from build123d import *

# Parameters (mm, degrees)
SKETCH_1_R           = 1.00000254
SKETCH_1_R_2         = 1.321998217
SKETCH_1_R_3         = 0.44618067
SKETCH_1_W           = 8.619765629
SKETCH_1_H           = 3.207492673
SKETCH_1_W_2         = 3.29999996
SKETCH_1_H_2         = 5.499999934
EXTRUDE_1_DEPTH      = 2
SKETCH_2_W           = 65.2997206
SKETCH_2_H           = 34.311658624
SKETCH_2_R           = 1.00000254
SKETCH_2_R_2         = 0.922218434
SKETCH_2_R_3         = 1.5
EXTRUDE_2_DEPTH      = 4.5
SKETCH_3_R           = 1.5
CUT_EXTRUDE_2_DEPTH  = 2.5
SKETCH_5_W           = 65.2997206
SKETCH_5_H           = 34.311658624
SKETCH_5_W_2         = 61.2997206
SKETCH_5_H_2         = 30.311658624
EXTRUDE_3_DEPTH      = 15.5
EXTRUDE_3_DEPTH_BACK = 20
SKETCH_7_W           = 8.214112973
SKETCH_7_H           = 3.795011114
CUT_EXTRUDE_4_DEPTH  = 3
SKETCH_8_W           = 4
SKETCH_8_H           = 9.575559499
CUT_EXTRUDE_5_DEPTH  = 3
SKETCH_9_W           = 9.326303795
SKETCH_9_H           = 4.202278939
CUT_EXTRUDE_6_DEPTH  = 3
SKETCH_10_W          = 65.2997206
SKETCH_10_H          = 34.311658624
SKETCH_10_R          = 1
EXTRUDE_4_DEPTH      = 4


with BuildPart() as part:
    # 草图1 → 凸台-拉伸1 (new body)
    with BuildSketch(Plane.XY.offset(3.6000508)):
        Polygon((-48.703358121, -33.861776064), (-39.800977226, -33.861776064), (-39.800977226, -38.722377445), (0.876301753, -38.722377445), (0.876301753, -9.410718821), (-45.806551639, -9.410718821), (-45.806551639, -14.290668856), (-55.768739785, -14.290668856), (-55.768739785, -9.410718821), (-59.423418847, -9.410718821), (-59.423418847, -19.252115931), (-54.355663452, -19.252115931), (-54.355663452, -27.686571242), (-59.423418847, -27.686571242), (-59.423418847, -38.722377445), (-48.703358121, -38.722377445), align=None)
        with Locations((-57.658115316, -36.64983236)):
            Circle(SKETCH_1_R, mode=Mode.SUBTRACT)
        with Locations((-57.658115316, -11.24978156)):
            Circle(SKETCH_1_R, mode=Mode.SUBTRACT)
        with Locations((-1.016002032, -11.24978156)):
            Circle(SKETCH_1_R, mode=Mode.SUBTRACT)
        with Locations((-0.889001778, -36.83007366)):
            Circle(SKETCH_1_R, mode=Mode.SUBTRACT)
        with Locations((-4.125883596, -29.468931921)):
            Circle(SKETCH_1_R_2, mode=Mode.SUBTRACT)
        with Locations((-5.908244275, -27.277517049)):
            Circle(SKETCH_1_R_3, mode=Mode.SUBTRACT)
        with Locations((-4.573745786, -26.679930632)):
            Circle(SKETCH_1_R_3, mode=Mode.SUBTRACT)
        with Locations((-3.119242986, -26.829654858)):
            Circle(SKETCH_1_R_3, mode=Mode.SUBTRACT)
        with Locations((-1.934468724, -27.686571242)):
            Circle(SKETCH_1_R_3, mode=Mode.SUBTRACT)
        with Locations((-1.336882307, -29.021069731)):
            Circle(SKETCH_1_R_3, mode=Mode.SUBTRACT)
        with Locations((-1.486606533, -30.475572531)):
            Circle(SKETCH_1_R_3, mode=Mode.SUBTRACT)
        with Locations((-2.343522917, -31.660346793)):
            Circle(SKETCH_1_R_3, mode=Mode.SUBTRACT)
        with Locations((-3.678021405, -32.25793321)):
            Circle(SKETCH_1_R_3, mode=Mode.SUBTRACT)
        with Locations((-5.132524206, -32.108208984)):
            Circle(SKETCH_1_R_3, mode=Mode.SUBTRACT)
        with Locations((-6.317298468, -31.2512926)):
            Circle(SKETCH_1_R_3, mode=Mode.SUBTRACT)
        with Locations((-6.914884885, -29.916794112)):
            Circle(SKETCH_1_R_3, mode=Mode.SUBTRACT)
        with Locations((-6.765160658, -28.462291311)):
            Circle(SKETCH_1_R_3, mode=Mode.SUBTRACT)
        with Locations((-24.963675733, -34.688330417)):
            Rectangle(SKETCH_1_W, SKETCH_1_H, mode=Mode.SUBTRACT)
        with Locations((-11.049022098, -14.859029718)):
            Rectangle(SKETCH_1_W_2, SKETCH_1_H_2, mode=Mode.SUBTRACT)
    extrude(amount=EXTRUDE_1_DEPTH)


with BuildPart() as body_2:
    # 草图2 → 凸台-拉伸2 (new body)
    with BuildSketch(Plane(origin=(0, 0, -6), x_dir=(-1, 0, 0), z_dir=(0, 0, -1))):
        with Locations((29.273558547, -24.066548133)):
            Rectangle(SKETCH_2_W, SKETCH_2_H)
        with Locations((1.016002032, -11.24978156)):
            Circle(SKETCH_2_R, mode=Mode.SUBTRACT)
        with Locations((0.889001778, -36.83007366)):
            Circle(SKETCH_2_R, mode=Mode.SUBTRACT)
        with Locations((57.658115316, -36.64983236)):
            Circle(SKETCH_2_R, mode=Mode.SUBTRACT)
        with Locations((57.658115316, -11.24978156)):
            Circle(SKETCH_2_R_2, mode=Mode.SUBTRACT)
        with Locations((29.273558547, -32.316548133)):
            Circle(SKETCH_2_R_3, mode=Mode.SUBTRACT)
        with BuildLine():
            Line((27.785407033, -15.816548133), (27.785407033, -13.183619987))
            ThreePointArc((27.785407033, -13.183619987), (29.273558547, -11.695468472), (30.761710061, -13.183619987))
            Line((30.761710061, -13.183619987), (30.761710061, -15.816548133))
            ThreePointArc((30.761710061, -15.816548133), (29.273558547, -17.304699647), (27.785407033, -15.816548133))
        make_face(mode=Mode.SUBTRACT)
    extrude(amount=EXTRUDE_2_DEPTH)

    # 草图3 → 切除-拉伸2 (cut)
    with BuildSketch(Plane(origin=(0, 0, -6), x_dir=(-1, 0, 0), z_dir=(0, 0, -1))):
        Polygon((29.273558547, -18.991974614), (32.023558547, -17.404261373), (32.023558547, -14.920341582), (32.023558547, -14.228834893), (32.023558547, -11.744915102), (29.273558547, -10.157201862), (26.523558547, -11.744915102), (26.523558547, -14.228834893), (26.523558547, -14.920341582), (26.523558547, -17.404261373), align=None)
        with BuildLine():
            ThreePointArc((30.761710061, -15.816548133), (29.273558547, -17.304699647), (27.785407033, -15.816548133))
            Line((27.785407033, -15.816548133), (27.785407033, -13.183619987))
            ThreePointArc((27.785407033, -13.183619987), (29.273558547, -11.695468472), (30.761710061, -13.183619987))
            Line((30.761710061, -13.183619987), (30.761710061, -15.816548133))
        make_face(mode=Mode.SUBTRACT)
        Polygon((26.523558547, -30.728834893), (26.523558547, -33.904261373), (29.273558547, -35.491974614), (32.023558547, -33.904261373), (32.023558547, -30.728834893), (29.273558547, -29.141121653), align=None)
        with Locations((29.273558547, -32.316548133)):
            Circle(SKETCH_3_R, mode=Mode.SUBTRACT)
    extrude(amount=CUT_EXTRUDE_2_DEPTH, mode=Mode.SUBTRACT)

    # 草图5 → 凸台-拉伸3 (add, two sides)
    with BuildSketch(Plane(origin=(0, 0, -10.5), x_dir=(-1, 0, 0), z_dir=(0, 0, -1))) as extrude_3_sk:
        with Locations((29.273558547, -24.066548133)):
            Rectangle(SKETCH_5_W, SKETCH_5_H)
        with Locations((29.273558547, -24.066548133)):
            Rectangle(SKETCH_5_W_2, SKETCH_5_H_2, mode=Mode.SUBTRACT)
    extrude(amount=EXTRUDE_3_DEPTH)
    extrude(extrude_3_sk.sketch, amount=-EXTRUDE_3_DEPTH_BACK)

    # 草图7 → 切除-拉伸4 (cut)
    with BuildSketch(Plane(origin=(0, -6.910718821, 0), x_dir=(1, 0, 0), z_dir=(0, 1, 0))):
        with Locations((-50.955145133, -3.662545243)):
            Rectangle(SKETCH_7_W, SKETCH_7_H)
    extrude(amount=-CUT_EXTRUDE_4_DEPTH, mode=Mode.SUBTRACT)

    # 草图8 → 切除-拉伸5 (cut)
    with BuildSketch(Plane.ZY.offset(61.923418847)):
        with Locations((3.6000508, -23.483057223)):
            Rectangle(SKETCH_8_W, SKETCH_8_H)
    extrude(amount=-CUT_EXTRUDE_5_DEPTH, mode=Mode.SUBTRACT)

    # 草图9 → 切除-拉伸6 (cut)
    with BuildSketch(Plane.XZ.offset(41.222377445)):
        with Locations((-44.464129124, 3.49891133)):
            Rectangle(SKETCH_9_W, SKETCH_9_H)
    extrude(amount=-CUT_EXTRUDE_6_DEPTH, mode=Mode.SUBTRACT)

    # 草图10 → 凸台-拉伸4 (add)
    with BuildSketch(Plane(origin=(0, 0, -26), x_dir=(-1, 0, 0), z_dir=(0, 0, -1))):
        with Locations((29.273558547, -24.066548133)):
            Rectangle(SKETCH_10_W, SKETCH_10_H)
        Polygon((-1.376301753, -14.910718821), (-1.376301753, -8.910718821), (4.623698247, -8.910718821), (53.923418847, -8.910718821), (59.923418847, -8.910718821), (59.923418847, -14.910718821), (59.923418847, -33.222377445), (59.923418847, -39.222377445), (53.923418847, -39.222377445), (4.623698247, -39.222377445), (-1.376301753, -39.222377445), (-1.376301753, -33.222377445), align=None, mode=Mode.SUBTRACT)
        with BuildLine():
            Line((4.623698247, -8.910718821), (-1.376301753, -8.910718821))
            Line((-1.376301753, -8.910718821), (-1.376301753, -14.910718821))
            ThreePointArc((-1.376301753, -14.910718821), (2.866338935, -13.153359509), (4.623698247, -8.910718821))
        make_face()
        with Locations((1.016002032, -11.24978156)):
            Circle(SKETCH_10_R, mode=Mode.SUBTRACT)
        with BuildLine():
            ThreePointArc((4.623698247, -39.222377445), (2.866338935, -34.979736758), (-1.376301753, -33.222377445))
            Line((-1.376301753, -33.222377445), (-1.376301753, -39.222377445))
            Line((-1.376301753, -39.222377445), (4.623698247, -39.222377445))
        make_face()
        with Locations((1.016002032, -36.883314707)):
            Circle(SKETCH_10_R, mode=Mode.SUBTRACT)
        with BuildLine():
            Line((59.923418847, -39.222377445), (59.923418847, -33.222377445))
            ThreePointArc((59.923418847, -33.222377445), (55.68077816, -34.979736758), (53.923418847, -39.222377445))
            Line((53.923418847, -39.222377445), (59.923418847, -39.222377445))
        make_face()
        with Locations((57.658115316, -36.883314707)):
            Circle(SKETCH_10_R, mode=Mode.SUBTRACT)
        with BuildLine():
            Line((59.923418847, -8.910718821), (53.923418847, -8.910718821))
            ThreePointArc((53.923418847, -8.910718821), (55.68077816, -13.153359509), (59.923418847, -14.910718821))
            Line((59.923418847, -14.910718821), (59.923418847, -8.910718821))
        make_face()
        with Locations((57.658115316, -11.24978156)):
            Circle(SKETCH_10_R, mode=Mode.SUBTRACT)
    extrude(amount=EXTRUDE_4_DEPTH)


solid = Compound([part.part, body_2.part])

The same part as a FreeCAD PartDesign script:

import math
import FreeCAD as App
import Part
import Sketcher
from FreeCAD import Vector
Q = App.Units.Quantity


def add_polygon(sketch, points):
    """Adds a closed chain of lines whose ends are joined by coincident constraints."""
    first, n = sketch.GeometryCount, len(points)
    for a, b in zip(points, points[1:] + points[:1]):
        sketch.addGeometry(Part.LineSegment(App.Vector(*a, 0), App.Vector(*b, 0)), False)
    for i in range(n):
        sketch.addConstraint(Sketcher.Constraint("Coincident", first + i, 2, first + (i + 1) % n, 1))

doc = App.newDocument("Part")
body = doc.addObject("PartDesign::Body", "Body")

# Sketch on XY plane
sketch1 = body.newObject("Sketcher::SketchObject", "Sketch")
sketch1.AttachmentSupport = (doc.getObject("XY_Plane"), [""])
sketch1.MapMode = "FlatFace"
sketch1.AttachmentOffset = App.Placement(Vector(0, 0, 3.600051), App.Rotation())
add_polygon(sketch1, [(-48.7, -33.86), (-39.8, -33.86), (-39.8, -38.72), (0.88, -38.72), (0.88, -9.41), (-45.81, -9.41), (-45.81, -14.29), (-55.77, -14.29), (-55.77, -9.41), (-59.42, -9.41), (-59.42, -19.25), (-54.36, -19.25), (-54.36, -27.69), (-59.42, -27.69), (-59.42, -38.72), (-48.7, -38.72)])  # lines 0-15
sketch1.addGeometry(Part.Circle(Vector(-57.66, -36.65, 0), Vector(0, 0, 1), 1), False)  # 16
add_polygon(sketch1, [(-20.65, -36.29), (-29.27, -36.29), (-29.27, -33.08), (-20.65, -33.08)])  # lines 17-20
sketch1.addGeometry(Part.Circle(Vector(-0.89, -36.83, 0), Vector(0, 0, 1), 1), False)  # 21
sketch1.addGeometry(Part.Circle(Vector(-3.68, -32.26, 0), Vector(0, 0, 1), 0.45), False)  # 22
sketch1.addGeometry(Part.Circle(Vector(-5.13, -32.11, 0), Vector(0, 0, 1), 0.45), False)  # 23
sketch1.addGeometry(Part.Circle(Vector(-6.32, -31.25, 0), Vector(0, 0, 1), 0.45), False)  # 24
sketch1.addGeometry(Part.Circle(Vector(-2.34, -31.66, 0), Vector(0, 0, 1), 0.45), False)  # 25
sketch1.addGeometry(Part.Circle(Vector(-6.91, -29.92, 0), Vector(0, 0, 1), 0.45), False)  # 26
sketch1.addGeometry(Part.Circle(Vector(-4.13, -29.47, 0), Vector(0, 0, 1), 1.32), False)  # 27
sketch1.addGeometry(Part.Circle(Vector(-1.49, -30.48, 0), Vector(0, 0, 1), 0.45), False)  # 28
sketch1.addGeometry(Part.Circle(Vector(-6.77, -28.46, 0), Vector(0, 0, 1), 0.45), False)  # 29
sketch1.addGeometry(Part.Circle(Vector(-1.34, -29.02, 0), Vector(0, 0, 1), 0.45), False)  # 30
sketch1.addGeometry(Part.Circle(Vector(-1.93, -27.69, 0), Vector(0, 0, 1), 0.45), False)  # 31
sketch1.addGeometry(Part.Circle(Vector(-5.91, -27.28, 0), Vector(0, 0, 1), 0.45), False)  # 32
sketch1.addGeometry(Part.Circle(Vector(-4.57, -26.68, 0), Vector(0, 0, 1), 0.45), False)  # 33
sketch1.addGeometry(Part.Circle(Vector(-3.12, -26.83, 0), Vector(0, 0, 1), 0.45), False)  # 34
sketch1.addGeometry(Part.Circle(Vector(-57.66, -11.25, 0), Vector(0, 0, 1), 1), False)  # 35
add_polygon(sketch1, [(-9.4, -17.61), (-12.7, -17.61), (-12.7, -12.11), (-9.4, -12.11)])  # lines 36-39
sketch1.addGeometry(Part.Circle(Vector(-1.02, -11.25, 0), Vector(0, 0, 1), 1), False)  # 40
sketch1.addConstraint([
    Sketcher.Constraint("Horizontal", 0),
    Sketcher.Constraint("Vertical", 1),
    Sketcher.Constraint("Horizontal", 2),
    Sketcher.Constraint("Vertical", 3),
    Sketcher.Constraint("Horizontal", 4),
    Sketcher.Constraint("Vertical", 5),
    Sketcher.Constraint("Horizontal", 6),
    Sketcher.Constraint("Vertical", 7),
    Sketcher.Constraint("Horizontal", 8),
    Sketcher.Constraint("Vertical", 9),
    Sketcher.Constraint("Horizontal", 10),
    Sketcher.Constraint("Vertical", 11),
    Sketcher.Constraint("Horizontal", 12),
    Sketcher.Constraint("Vertical", 13),
    Sketcher.Constraint("Horizontal", 14),
    Sketcher.Constraint("Vertical", 15),
    Sketcher.Constraint("Horizontal", 17),
    Sketcher.Constraint("Vertical", 18),
    Sketcher.Constraint("Horizontal", 19),
    Sketcher.Constraint("Vertical", 20),
    Sketcher.Constraint("Horizontal", 36),
    Sketcher.Constraint("Vertical", 37),
    Sketcher.Constraint("Horizontal", 38),
    Sketcher.Constraint("Vertical", 39),
    Sketcher.Constraint("Equal", 16, 21),
    Sketcher.Constraint("Equal", 22, 23),
    Sketcher.Constraint("Equal", 23, 24),
    Sketcher.Constraint("Equal", 24, 25),
    Sketcher.Constraint("Equal", 25, 26),
    Sketcher.Constraint("Equal", 26, 28),
    Sketcher.Constraint("Equal", 28, 29),
    Sketcher.Constraint("Equal", 29, 30),
    Sketcher.Constraint("Equal", 30, 31),
    Sketcher.Constraint("Equal", 31, 32),
    Sketcher.Constraint("Equal", 32, 33),
    Sketcher.Constraint("Equal", 33, 34),
    Sketcher.Constraint("Equal", 21, 35),
    Sketcher.Constraint("Equal", 35, 40),
    Sketcher.Constraint("Horizontal", 35, 3, 40, 3),
    Sketcher.Constraint("Horizontal", 4, 2, 7, 2),
    Sketcher.Constraint("Horizontal", 31, 3, 11, 2),
    Sketcher.Constraint("Horizontal", 2, 2, 13, 2),
    Sketcher.Constraint("Vertical", 16, 3, 35, 3),
    Sketcher.Constraint("Vertical", 9, 2, 12, 2),
    Sketcher.Constraint("DistanceX", 36, 2, 36, 1, Q("3.3 mm")),
    Sketcher.Constraint("DistanceY", 37, 1, 37, 2, Q("5.5 mm")),
    Sketcher.Constraint("Diameter", 22, Q("0.892361 mm")),
    Sketcher.Constraint("Diameter", 16, Q("2.000005 mm")),
    Sketcher.Constraint("Diameter", 27, Q("2.643996 mm")),
    Sketcher.Constraint("DistanceY", 1, 2, 1, 1, Q("4.860601 mm")),
    Sketcher.Constraint("DistanceX", 21, 3, -1, 1, Q("0.889002 mm")),
    Sketcher.Constraint("DistanceX", 23, 3, 25, 3, Q("2.789001 mm")),
    Sketcher.Constraint("DistanceY", 22, 3, 27, 3, Q("2.789001 mm")),
    Sketcher.Constraint("DistanceX", 26, 3, 27, 3, Q("2.789001 mm")),
    Sketcher.Constraint("DistanceY", 24, 3, 29, 3, Q("2.789001 mm")),
    Sketcher.Constraint("DistanceX", 27, 3, 30, 3, Q("2.789001 mm")),
    Sketcher.Constraint("DistanceY", 28, 3, 31, 3, Q("2.789001 mm")),
    Sketcher.Constraint("DistanceY", 27, 3, 33, 3, Q("2.789001 mm")),
    Sketcher.Constraint("DistanceX", 32, 3, 34, 3, Q("2.789001 mm")),
    Sketcher.Constraint("DistanceX", 0, 1, 0, 2, Q("8.902381 mm")),
    Sketcher.Constraint("DistanceX", 2, 1, 2, 2, Q("40.677279 mm")),
    Sketcher.Constraint("DistanceX", 6, 2, 6, 1, Q("9.962188 mm")),
    Sketcher.Constraint("DistanceX", 8, 2, 8, 1, Q("3.654679 mm")),
    Sketcher.Constraint("DistanceX", 14, 1, 14, 2, Q("10.720061 mm")),
    Sketcher.Constraint("DistanceY", 3, 1, 3, 2, Q("29.311659 mm")),
    Sketcher.Constraint("DistanceY", 5, 2, 5, 1, Q("4.87995 mm")),
    Sketcher.Constraint("DistanceX", 24, 3, -1, 1, Q("6.317298 mm")),
    Sketcher.Constraint("DistanceX", -1, 1, 2, 2, Q("0.876302 mm")),
    Sketcher.Constraint("DistanceY", 16, 3, 22, 3, Q("4.391899 mm")),
    Sketcher.Constraint("DistanceX", 22, 3, 25, 3, Q("1.334498 mm")),
    Sketcher.Constraint("DistanceY", 24, 3, 26, 3, Q("1.334498 mm")),
    Sketcher.Constraint("DistanceY", 30, 3, 31, 3, Q("1.334498 mm")),
    Sketcher.Constraint("DistanceX", 32, 3, 33, 3, Q("1.334498 mm")),
    Sketcher.Constraint("DistanceY", 32, 3, 3, 2, Q("17.866798 mm")),
    Sketcher.Constraint("DistanceY", 17, 2, 0, 2, Q("2.430301 mm")),
    Sketcher.Constraint("DistanceX", 15, 2, 17, 2, Q("19.4298 mm")),
    Sketcher.Constraint("DistanceY", 33, 3, 36, 2, Q("9.070901 mm")),
    Sketcher.Constraint("DistanceX", 10, 1, 10, 2, Q("5.067755 mm")),
    Sketcher.Constraint("DistanceX", 17, 2, 17, 1, Q("8.619766 mm")),
    Sketcher.Constraint("DistanceY", 9, 2, 9, 1, Q("9.841397 mm")),
    Sketcher.Constraint("DistanceY", 11, 2, 11, 1, Q("8.434455 mm")),
    Sketcher.Constraint("DistanceY", 18, 1, 18, 2, Q("3.207493 mm")),
    Sketcher.Constraint("DistanceX", 22, 3, -1, 1, Q("3.678021 mm")),
    Sketcher.Constraint("DistanceY", 23, 3, -1, 1, Q("32.108209 mm")),
    Sketcher.Constraint("DistanceY", 27, 3, -1, 1, Q("29.468932 mm")),
    Sketcher.Constraint("DistanceX", 29, 3, -1, 1, Q("6.765161 mm")),
    Sketcher.Constraint("DistanceY", 29, 3, -1, 1, Q("28.462291 mm")),
    Sketcher.Constraint("DistanceY", 30, 3, -1, 1, Q("29.02107 mm")),
    Sketcher.Constraint("DistanceX", 31, 3, -1, 1, Q("1.934469 mm")),
    Sketcher.Constraint("DistanceY", 35, 3, -1, 1, Q("11.249782 mm")),
    Sketcher.Constraint("DistanceY", 21, 3, 16, 3, Q("0.180241 mm")),
    Sketcher.Constraint("DistanceX", 16, 3, 23, 3, Q("52.525591 mm")),
    Sketcher.Constraint("DistanceX", 26, 3, 23, 3, Q("1.782361 mm")),
    Sketcher.Constraint("DistanceX", 24, 3, 28, 3, Q("4.830692 mm")),
    Sketcher.Constraint("DistanceX", 32, 3, 27, 3, Q("1.782361 mm")),
    Sketcher.Constraint("DistanceX", 34, 3, 40, 3, Q("2.103241 mm")),
    Sketcher.Constraint("DistanceY", 2, 2, 25, 3, Q("7.062031 mm")),
    Sketcher.Constraint("DistanceX", 36, 2, 29, 3, Q("5.933861 mm")),
    Sketcher.Constraint("DistanceY", 34, 3, -1, 1, Q("26.829655 mm")),
])
pad1 = body.newObject("PartDesign::Pad", "Pad")
pad1.Profile = sketch1
pad1.Length = 2
body2 = doc.addObject("PartDesign::Body", "Body001")

# Sketch on XY plane
sketch2 = body2.newObject("Sketcher::SketchObject", "Sketch001")
sketch2.AttachmentSupport = (doc.getObject("XY_Plane001"), [""])
sketch2.MapMode = "FlatFace"
sketch2.AttachmentOffset = App.Placement(Vector(0, 0, -6), App.Rotation())
add_polygon(sketch2, [(3.4, -6.9), (3.4, -41.2), (-61.9, -41.2), (-61.9, -6.9)])  # lines 0-3
sketch2.addGeometry(Part.Circle(Vector(-0.9, -36.8, 0), Vector(0, 0, 1), 1), False)  # 4
sketch2.addGeometry(Part.Circle(Vector(-29.3, -32.3, 0), Vector(0, 0, 1), 1.5), False)  # 5
sketch2.addGeometry(Part.Circle(Vector(-57.7, -36.6, 0), Vector(0, 0, 1), 1), False)  # 6
sketch2.addGeometry(Part.Circle(Vector(-1, -11.2, 0), Vector(0, 0, 1), 1), False)  # 7
sketch2.addGeometry(Part.ArcOfCircle(Part.Circle(Vector(-29.3, -15.8, 0), Vector(0, 0, 1), 1.5), math.radians(180), math.radians(360)), False)  # 8
sketch2.addGeometry(Part.LineSegment(Vector(-27.8, -15.8, 0), Vector(-27.8, -13.2, 0)), False)  # 9
sketch2.addGeometry(Part.ArcOfCircle(Part.Circle(Vector(-29.3, -13.2, 0), Vector(0, 0, 1), 1.5), math.radians(0), math.radians(180)), False)  # 10
sketch2.addGeometry(Part.LineSegment(Vector(-30.8, -13.2, 0), Vector(-30.8, -15.8, 0)), False)  # 11
sketch2.addGeometry(Part.Circle(Vector(-57.7, -11.2, 0), Vector(0, 0, 1), 0.9), False)  # 12
sketch2.addConstraint([
    Sketcher.Constraint("Tangent", 8, 2, 9, 1),
    Sketcher.Constraint("Tangent", 9, 2, 10, 1),
    Sketcher.Constraint("Tangent", 10, 2, 11, 1),
    Sketcher.Constraint("Tangent", 11, 2, 8, 1),
    Sketcher.Constraint("Vertical", 0),
    Sketcher.Constraint("Horizontal", 1),
    Sketcher.Constraint("Vertical", 2),
    Sketcher.Constraint("Horizontal", 3),
    Sketcher.Constraint("Vertical", 9),
    Sketcher.Constraint("Vertical", 11),
    Sketcher.Constraint("Equal", 4, 6),
    Sketcher.Constraint("Equal", 6, 7),
    Sketcher.Constraint("Horizontal", 7, 3, 12, 3),
    Sketcher.Constraint("Vertical", 5, 3, 8, 3),
    Sketcher.Constraint("Vertical", 6, 3, 12, 3),
    Sketcher.Constraint("Diameter", 5, Q("3 mm")),
    Sketcher.Constraint("DistanceY", 5, 3, 8, 3, Q("16.5 mm")),
    Sketcher.Constraint("Radius", 8, Q("1.488152 mm")),
    Sketcher.Constraint("Diameter", 4, Q("2.000005 mm")),
    Sketcher.Constraint("Diameter", 12, Q("1.844437 mm")),
    Sketcher.Constraint("DistanceX", 4, 3, -1, 1, Q("0.889002 mm")),
    Sketcher.Constraint("DistanceX", 7, 3, 4, 3, Q("0.127 mm")),
    Sketcher.Constraint("DistanceX", 1, 2, 1, 1, Q("65.299721 mm")),
    Sketcher.Constraint("DistanceY", 0, 2, 0, 1, Q("34.311659 mm")),
    Sketcher.Constraint("DistanceY", 9, 1, 9, 2, Q("2.632928 mm")),
    Sketcher.Constraint("DistanceX", -1, 1, 0, 2, Q("3.376302 mm")),
    Sketcher.Constraint("DistanceY", 10, 3, 2, 2, Q("6.272901 mm")),
    Sketcher.Constraint("DistanceX", 5, 3, -1, 1, Q("29.273559 mm")),
    Sketcher.Constraint("DistanceY", 5, 3, -1, 1, Q("32.316548 mm")),
    Sketcher.Constraint("DistanceY", 7, 3, -1, 1, Q("11.249782 mm")),
    Sketcher.Constraint("DistanceY", 4, 3, 6, 3, Q("0.180241 mm")),
    Sketcher.Constraint("DistanceY", 6, 3, 7, 3, Q("25.400051 mm")),
    Sketcher.Constraint("DistanceX", 12, 3, 8, 2, Q("29.872708 mm")),
])
pad2 = body2.newObject("PartDesign::Pad", "Pad001")
pad2.Profile = sketch2
pad2.Length = 4.5
pad2.Reversed = True

# Sketch on XY plane
sketch3 = body2.newObject("Sketcher::SketchObject", "Sketch002")
sketch3.AttachmentSupport = (doc.getObject("XY_Plane001"), [""])
sketch3.MapMode = "FlatFace"
sketch3.AttachmentOffset = App.Placement(Vector(0, 0, -6), App.Rotation())
add_polygon(sketch3, [(-29.3, -19), (-32, -17.4), (-32, -11.7), (-29.3, -10.2), (-26.5, -11.7), (-26.5, -17.4)])  # lines 0-5
sketch3.addGeometry(Part.LineSegment(Vector(-30.8, -13.2, 0), Vector(-30.8, -15.8, 0)), False)  # 6
sketch3.addGeometry(Part.ArcOfCircle(Part.Circle(Vector(-29.3, -15.8, 0), Vector(0, 0, 1), 1.5), math.radians(180), math.radians(360)), False)  # 7
sketch3.addGeometry(Part.LineSegment(Vector(-27.8, -15.8, 0), Vector(-27.8, -13.2, 0)), False)  # 8
sketch3.addGeometry(Part.ArcOfCircle(Part.Circle(Vector(-29.3, -13.2, 0), Vector(0, 0, 1), 1.5), math.radians(0), math.radians(180)), False)  # 9
add_polygon(sketch3, [(-26.5, -30.7), (-26.5, -33.9), (-29.3, -35.5), (-32, -33.9), (-32, -30.7), (-29.3, -29.1)])  # lines 10-15
sketch3.addGeometry(Part.Circle(Vector(-29.3, -32.3, 0), Vector(0, 0, 1), 1.5), False)  # 16
sketch3.addConstraint([
    Sketcher.Constraint("Tangent", 6, 2, 7, 1),
    Sketcher.Constraint("Tangent", 7, 2, 8, 1),
    Sketcher.Constraint("Tangent", 8, 2, 9, 1),
    Sketcher.Constraint("Tangent", 9, 2, 6, 1),
    Sketcher.Constraint("Vertical", 1),
    Sketcher.Constraint("Vertical", 4),
    Sketcher.Constraint("Vertical", 6),
    Sketcher.Constraint("Vertical", 8),
    Sketcher.Constraint("Vertical", 10),
    Sketcher.Constraint("Vertical", 13),
    Sketcher.Constraint("Parallel", 0, 3),
    Sketcher.Constraint("Parallel", 2, 5),
    Sketcher.Constraint("Parallel", 5, 11),
    Sketcher.Constraint("Parallel", 3, 12),
    Sketcher.Constraint("Parallel", 11, 14),
    Sketcher.Constraint("Parallel", 12, 15),
    Sketcher.Constraint("Horizontal", 1, 2, 3, 2),
    Sketcher.Constraint("Horizontal", 0, 2, 4, 2),
    Sketcher.Constraint("Horizontal", 10, 2, 12, 2),
    Sketcher.Constraint("Horizontal", 13, 2, 15, 2),
    Sketcher.Constraint("Vertical", 9, 3, 16, 3),
    Sketcher.Constraint("Vertical", 16, 3, 2, 2),
    Sketcher.Constraint("Vertical", 2, 2, 5, 2),
    Sketcher.Constraint("Vertical", 4, 2, 10, 2),
    Sketcher.Constraint("Vertical", 5, 2, 11, 2),
    Sketcher.Constraint("Diameter", 16, Q("3 mm")),
    Sketcher.Constraint("Angle", 0, Q("150 deg")),
    Sketcher.Constraint("DistanceY", 16, 3, 7, 3, Q("16.5 mm")),
    Sketcher.Constraint("DistanceX", 1, 2, 3, 2, Q("5.5 mm")),
    Sketcher.Constraint("DistanceY", 10, 2, 4, 2, Q("16.5 mm")),
    Sketcher.Constraint("Radius", 7, Q("1.488152 mm")),
    Sketcher.Constraint("DistanceY", 6, 2, 6, 1, Q("2.632928 mm")),
    Sketcher.Constraint("DistanceY", 2, 2, -1, 1, Q("10.157202 mm")),
    Sketcher.Constraint("DistanceY", 1, 1, 1, 2, Q("5.659346 mm")),
    Sketcher.Constraint("DistanceY", 10, 2, 10, 1, Q("3.175426 mm")),
    Sketcher.Constraint("DistanceX", 7, 3, -1, 1, Q("29.273559 mm")),
    Sketcher.Constraint("DistanceY", 7, 3, -1, 1, Q("15.816548 mm")),
])
pocket1 = body2.newObject("PartDesign::Pocket", "Pocket")
pocket1.Profile = sketch3
pocket1.Length = 2.5

# Sketch on XY plane
sketch4 = body2.newObject("Sketcher::SketchObject", "Sketch003")
sketch4.AttachmentSupport = (doc.getObject("XY_Plane001"), [""])
sketch4.MapMode = "FlatFace"
sketch4.AttachmentOffset = App.Placement(Vector(0, 0, -10.5), App.Rotation())
add_polygon(sketch4, [(3, -7), (3, -41), (-62, -41), (-62, -7)])  # lines 0-3
add_polygon(sketch4, [(-60, -39), (1, -39), (1, -9), (-60, -9)])  # lines 4-7
sketch4.addConstraint([
    Sketcher.Constraint("Vertical", 0),
    Sketcher.Constraint("Horizontal", 1),
    Sketcher.Constraint("Vertical", 2),
    Sketcher.Constraint("Horizontal", 3),
    Sketcher.Constraint("Horizontal", 4),
    Sketcher.Constraint("Vertical", 5),
    Sketcher.Constraint("Horizontal", 6),
    Sketcher.Constraint("Vertical", 7),
    Sketcher.Constraint("DistanceX", 4, 2, 0, 2, Q("2 mm")),
    Sketcher.Constraint("DistanceY", 0, 2, 4, 2, Q("2 mm")),
    Sketcher.Constraint("DistanceY", 5, 2, 3, 2, Q("2 mm")),
    Sketcher.Constraint("DistanceX", 2, 2, 6, 2, Q("2 mm")),
    Sketcher.Constraint("DistanceX", 1, 2, 1, 1, Q("65.299721 mm")),
    Sketcher.Constraint("DistanceY", 0, 2, 0, 1, Q("34.311659 mm")),
    Sketcher.Constraint("DistanceX", -1, 1, 0, 2, Q("3.376302 mm")),
    Sketcher.Constraint("DistanceY", 2, 2, -1, 1, Q("6.910719 mm")),
])
pad3 = body2.newObject("PartDesign::Pad", "Pad002")
pad3.Profile = sketch4
pad3.Type = "TwoLengths"
pad3.Length = 15.5
pad3.Length2 = 20
pad3.Reversed = True

# Sketch on XZ plane
sketch5 = body2.newObject("Sketcher::SketchObject", "Sketch004")
sketch5.AttachmentSupport = (doc.getObject("XZ_Plane001"), [""])
sketch5.MapMode = "FlatFace"
sketch5.AttachmentOffset = App.Placement(Vector(0, 0, 6.910719), App.Rotation())
add_polygon(sketch5, [(-55.1, 1.8), (-55.1, 5.6), (-46.8, 5.6), (-46.8, 1.8)])  # lines 0-3
sketch5.addConstraint([
    Sketcher.Constraint("Vertical", 0),
    Sketcher.Constraint("Horizontal", 1),
    Sketcher.Constraint("Vertical", 2),
    Sketcher.Constraint("Horizontal", 3),
    Sketcher.Constraint("DistanceY", 0, 1, 0, 2, Q("3.795011 mm")),
    Sketcher.Constraint("DistanceX", 0, 2, -1, 1, Q("55.062202 mm")),
    Sketcher.Constraint("DistanceX", 1, 1, 1, 2, Q("8.214113 mm")),
    Sketcher.Constraint("DistanceY", -1, 1, 0, 2, Q("5.560051 mm")),
])
pocket2 = body2.newObject("PartDesign::Pocket", "Pocket001")
pocket2.Profile = sketch5
pocket2.Length = 3
pocket2.Reversed = True

# Sketch on YZ plane
sketch6 = body2.newObject("Sketcher::SketchObject", "Sketch005")
sketch6.AttachmentSupport = (doc.getObject("YZ_Plane001"), [""])
sketch6.MapMode = "FlatFace"
sketch6.AttachmentOffset = App.Placement(Vector(0, 0, -61.923419), App.Rotation())
add_polygon(sketch6, [(-18.7, 1.6), (-28.3, 1.6), (-28.3, 5.6), (-18.7, 5.6)])  # lines 0-3
sketch6.addConstraint([
    Sketcher.Constraint("Horizontal", 0),
    Sketcher.Constraint("Vertical", 1),
    Sketcher.Constraint("Horizontal", 2),
    Sketcher.Constraint("Vertical", 3),
    Sketcher.Constraint("DistanceY", 1, 1, 1, 2, Q("4 mm")),
    Sketcher.Constraint("DistanceX", 0, 2, 0, 1, Q("9.575559 mm")),
    Sketcher.Constraint("DistanceY", -1, 1, 0, 2, Q("1.600051 mm")),
    Sketcher.Constraint("DistanceX", 0, 2, -1, 1, Q("28.270837 mm")),
])
pocket3 = body2.newObject("PartDesign::Pocket", "Pocket002")
pocket3.Profile = sketch6
pocket3.Length = 3
pocket3.Reversed = True

# Sketch on XZ plane
sketch7 = body2.newObject("Sketcher::SketchObject", "Sketch006")
sketch7.AttachmentSupport = (doc.getObject("XZ_Plane001"), [""])
sketch7.MapMode = "FlatFace"
sketch7.AttachmentOffset = App.Placement(Vector(0, 0, 41.222377), App.Rotation())
add_polygon(sketch7, [(-49.1, 5.6), (-49.1, 1.4), (-39.8, 1.4), (-39.8, 5.6)])  # lines 0-3
sketch7.addConstraint([
    Sketcher.Constraint("Vertical", 0),
    Sketcher.Constraint("Horizontal", 1),
    Sketcher.Constraint("Vertical", 2),
    Sketcher.Constraint("Horizontal", 3),
    Sketcher.Constraint("DistanceY", 0, 2, 0, 1, Q("4.202279 mm")),
    Sketcher.Constraint("DistanceX", 1, 1, 1, 2, Q("9.326304 mm")),
    Sketcher.Constraint("DistanceX", 0, 2, -1, 1, Q("49.127281 mm")),
    Sketcher.Constraint("DistanceY", -1, 1, 0, 2, Q("1.397772 mm")),
])
pocket4 = body2.newObject("PartDesign::Pocket", "Pocket003")
pocket4.Profile = sketch7
pocket4.Length = 3

# Sketch on XY plane
sketch8 = body2.newObject("Sketcher::SketchObject", "Sketch007")
sketch8.AttachmentSupport = (doc.getObject("XY_Plane001"), [""])
sketch8.MapMode = "FlatFace"
sketch8.AttachmentOffset = App.Placement(Vector(0, 0, -26), App.Rotation())
add_polygon(sketch8, [(3.4, -6.9), (3.4, -41.2), (-61.9, -41.2), (-61.9, -6.9)])  # lines 0-3
sketch8.addGeometry(Part.Circle(Vector(-1, -36.9, 0), Vector(0, 0, 1), 1), False)  # 4
sketch8.addGeometry(Part.Circle(Vector(-57.7, -36.9, 0), Vector(0, 0, 1), 1), False)  # 5
sketch8.addGeometry(Part.Circle(Vector(-1, -11.2, 0), Vector(0, 0, 1), 1), False)  # 6
sketch8.addGeometry(Part.LineSegment(Vector(1.4, -33.2, 0), Vector(1.4, -14.9, 0)), False)  # 7
sketch8.addGeometry(Part.ArcOfCircle(Part.Circle(Vector(1.4, -8.9, 0), Vector(0, 0, 1), 6), math.radians(180), math.radians(270)), False)  # 8
sketch8.addGeometry(Part.LineSegment(Vector(-4.6, -8.9, 0), Vector(-53.9, -8.9, 0)), False)  # 9
sketch8.addGeometry(Part.ArcOfCircle(Part.Circle(Vector(-59.9, -8.9, 0), Vector(0, 0, 1), 6), math.radians(-90), math.radians(0)), False)  # 10
sketch8.addGeometry(Part.LineSegment(Vector(-59.9, -14.9, 0), Vector(-59.9, -33.2, 0)), False)  # 11
sketch8.addGeometry(Part.ArcOfCircle(Part.Circle(Vector(-59.9, -39.2, 0), Vector(0, 0, 1), 6), math.radians(0), math.radians(90)), False)  # 12
sketch8.addGeometry(Part.LineSegment(Vector(-53.9, -39.2, 0), Vector(-4.6, -39.2, 0)), False)  # 13
sketch8.addGeometry(Part.ArcOfCircle(Part.Circle(Vector(1.4, -39.2, 0), Vector(0, 0, 1), 6), math.radians(90), math.radians(180)), False)  # 14
sketch8.addGeometry(Part.Circle(Vector(-57.7, -11.2, 0), Vector(0, 0, 1), 1), False)  # 15
sketch8.addConstraint([
    Sketcher.Constraint("Coincident", 7, 2, 8, 2),
    Sketcher.Constraint("Coincident", 8, 1, 9, 1),
    Sketcher.Constraint("Coincident", 9, 2, 10, 2),
    Sketcher.Constraint("Coincident", 10, 1, 11, 1),
    Sketcher.Constraint("Coincident", 11, 2, 12, 2),
    Sketcher.Constraint("Coincident", 12, 1, 13, 1),
    Sketcher.Constraint("Coincident", 13, 2, 14, 2),
    Sketcher.Constraint("Coincident", 14, 1, 7, 1),
    Sketcher.Constraint("Vertical", 0),
    Sketcher.Constraint("Horizontal", 1),
    Sketcher.Constraint("Vertical", 2),
    Sketcher.Constraint("Horizontal", 3),
    Sketcher.Constraint("Vertical", 7),
    Sketcher.Constraint("Horizontal", 9),
    Sketcher.Constraint("Vertical", 11),
    Sketcher.Constraint("Horizontal", 13),
    Sketcher.Constraint("Equal", 4, 5),
    Sketcher.Constraint("Equal", 5, 6),
    Sketcher.Constraint("Equal", 8, 10),
    Sketcher.Constraint("Equal", 10, 12),
    Sketcher.Constraint("Equal", 12, 14),
    Sketcher.Constraint("Equal", 6, 15),
    Sketcher.Constraint("Horizontal", 4, 3, 5, 3),
    Sketcher.Constraint("Horizontal", 8, 3, 10, 3),
    Sketcher.Constraint("Horizontal", 12, 3, 14, 3),
    Sketcher.Constraint("Horizontal", 6, 3, 15, 3),
    Sketcher.Constraint("Horizontal", 10, 3, 8, 1),
    Sketcher.Constraint("Horizontal", 14, 3, 12, 1),
    Sketcher.Constraint("Vertical", 4, 3, 6, 3),
    Sketcher.Constraint("Vertical", 10, 3, 12, 3),
    Sketcher.Constraint("Vertical", 8, 3, 14, 3),
    Sketcher.Constraint("Vertical", 5, 3, 15, 3),
    Sketcher.Constraint("Vertical", 14, 3, 7, 2),
    Sketcher.Constraint("Vertical", 12, 3, 10, 1),
    Sketcher.Constraint("Diameter", 4, Q("2 mm")),
    Sketcher.Constraint("Radius", 8, Q("6 mm")),
    Sketcher.Constraint("DistanceX", 14, 3, 0, 2, Q("2 mm")),
    Sketcher.Constraint("DistanceY", 0, 2, 14, 3, Q("2 mm")),
    Sketcher.Constraint("DistanceX", 1, 2, 12, 3, Q("2 mm")),
    Sketcher.Constraint("DistanceY", 10, 3, 2, 2, Q("2 mm")),
    Sketcher.Constraint("DistanceX", 1, 2, 1, 1, Q("65.299721 mm")),
    Sketcher.Constraint("DistanceY", 0, 2, 0, 1, Q("34.311659 mm")),
    Sketcher.Constraint("DistanceX", -1, 1, 8, 3, Q("1.376302 mm")),
    Sketcher.Constraint("DistanceY", 6, 3, -1, 1, Q("11.249782 mm")),
    Sketcher.Constraint("DistanceY", 8, 3, -1, 1, Q("8.910719 mm")),
    Sketcher.Constraint("DistanceX", 4, 3, -1, 1, Q("1.016002 mm")),
    Sketcher.Constraint("DistanceY", 4, 3, -1, 1, Q("36.883315 mm")),
    Sketcher.Constraint("DistanceX", 5, 3, -1, 1, Q("57.658115 mm")),
])
pad4 = body2.newObject("PartDesign::Pad", "Pad003")
pad4.Profile = sketch8
pad4.Length = 4
pad4.Reversed = True

doc.recompute()
